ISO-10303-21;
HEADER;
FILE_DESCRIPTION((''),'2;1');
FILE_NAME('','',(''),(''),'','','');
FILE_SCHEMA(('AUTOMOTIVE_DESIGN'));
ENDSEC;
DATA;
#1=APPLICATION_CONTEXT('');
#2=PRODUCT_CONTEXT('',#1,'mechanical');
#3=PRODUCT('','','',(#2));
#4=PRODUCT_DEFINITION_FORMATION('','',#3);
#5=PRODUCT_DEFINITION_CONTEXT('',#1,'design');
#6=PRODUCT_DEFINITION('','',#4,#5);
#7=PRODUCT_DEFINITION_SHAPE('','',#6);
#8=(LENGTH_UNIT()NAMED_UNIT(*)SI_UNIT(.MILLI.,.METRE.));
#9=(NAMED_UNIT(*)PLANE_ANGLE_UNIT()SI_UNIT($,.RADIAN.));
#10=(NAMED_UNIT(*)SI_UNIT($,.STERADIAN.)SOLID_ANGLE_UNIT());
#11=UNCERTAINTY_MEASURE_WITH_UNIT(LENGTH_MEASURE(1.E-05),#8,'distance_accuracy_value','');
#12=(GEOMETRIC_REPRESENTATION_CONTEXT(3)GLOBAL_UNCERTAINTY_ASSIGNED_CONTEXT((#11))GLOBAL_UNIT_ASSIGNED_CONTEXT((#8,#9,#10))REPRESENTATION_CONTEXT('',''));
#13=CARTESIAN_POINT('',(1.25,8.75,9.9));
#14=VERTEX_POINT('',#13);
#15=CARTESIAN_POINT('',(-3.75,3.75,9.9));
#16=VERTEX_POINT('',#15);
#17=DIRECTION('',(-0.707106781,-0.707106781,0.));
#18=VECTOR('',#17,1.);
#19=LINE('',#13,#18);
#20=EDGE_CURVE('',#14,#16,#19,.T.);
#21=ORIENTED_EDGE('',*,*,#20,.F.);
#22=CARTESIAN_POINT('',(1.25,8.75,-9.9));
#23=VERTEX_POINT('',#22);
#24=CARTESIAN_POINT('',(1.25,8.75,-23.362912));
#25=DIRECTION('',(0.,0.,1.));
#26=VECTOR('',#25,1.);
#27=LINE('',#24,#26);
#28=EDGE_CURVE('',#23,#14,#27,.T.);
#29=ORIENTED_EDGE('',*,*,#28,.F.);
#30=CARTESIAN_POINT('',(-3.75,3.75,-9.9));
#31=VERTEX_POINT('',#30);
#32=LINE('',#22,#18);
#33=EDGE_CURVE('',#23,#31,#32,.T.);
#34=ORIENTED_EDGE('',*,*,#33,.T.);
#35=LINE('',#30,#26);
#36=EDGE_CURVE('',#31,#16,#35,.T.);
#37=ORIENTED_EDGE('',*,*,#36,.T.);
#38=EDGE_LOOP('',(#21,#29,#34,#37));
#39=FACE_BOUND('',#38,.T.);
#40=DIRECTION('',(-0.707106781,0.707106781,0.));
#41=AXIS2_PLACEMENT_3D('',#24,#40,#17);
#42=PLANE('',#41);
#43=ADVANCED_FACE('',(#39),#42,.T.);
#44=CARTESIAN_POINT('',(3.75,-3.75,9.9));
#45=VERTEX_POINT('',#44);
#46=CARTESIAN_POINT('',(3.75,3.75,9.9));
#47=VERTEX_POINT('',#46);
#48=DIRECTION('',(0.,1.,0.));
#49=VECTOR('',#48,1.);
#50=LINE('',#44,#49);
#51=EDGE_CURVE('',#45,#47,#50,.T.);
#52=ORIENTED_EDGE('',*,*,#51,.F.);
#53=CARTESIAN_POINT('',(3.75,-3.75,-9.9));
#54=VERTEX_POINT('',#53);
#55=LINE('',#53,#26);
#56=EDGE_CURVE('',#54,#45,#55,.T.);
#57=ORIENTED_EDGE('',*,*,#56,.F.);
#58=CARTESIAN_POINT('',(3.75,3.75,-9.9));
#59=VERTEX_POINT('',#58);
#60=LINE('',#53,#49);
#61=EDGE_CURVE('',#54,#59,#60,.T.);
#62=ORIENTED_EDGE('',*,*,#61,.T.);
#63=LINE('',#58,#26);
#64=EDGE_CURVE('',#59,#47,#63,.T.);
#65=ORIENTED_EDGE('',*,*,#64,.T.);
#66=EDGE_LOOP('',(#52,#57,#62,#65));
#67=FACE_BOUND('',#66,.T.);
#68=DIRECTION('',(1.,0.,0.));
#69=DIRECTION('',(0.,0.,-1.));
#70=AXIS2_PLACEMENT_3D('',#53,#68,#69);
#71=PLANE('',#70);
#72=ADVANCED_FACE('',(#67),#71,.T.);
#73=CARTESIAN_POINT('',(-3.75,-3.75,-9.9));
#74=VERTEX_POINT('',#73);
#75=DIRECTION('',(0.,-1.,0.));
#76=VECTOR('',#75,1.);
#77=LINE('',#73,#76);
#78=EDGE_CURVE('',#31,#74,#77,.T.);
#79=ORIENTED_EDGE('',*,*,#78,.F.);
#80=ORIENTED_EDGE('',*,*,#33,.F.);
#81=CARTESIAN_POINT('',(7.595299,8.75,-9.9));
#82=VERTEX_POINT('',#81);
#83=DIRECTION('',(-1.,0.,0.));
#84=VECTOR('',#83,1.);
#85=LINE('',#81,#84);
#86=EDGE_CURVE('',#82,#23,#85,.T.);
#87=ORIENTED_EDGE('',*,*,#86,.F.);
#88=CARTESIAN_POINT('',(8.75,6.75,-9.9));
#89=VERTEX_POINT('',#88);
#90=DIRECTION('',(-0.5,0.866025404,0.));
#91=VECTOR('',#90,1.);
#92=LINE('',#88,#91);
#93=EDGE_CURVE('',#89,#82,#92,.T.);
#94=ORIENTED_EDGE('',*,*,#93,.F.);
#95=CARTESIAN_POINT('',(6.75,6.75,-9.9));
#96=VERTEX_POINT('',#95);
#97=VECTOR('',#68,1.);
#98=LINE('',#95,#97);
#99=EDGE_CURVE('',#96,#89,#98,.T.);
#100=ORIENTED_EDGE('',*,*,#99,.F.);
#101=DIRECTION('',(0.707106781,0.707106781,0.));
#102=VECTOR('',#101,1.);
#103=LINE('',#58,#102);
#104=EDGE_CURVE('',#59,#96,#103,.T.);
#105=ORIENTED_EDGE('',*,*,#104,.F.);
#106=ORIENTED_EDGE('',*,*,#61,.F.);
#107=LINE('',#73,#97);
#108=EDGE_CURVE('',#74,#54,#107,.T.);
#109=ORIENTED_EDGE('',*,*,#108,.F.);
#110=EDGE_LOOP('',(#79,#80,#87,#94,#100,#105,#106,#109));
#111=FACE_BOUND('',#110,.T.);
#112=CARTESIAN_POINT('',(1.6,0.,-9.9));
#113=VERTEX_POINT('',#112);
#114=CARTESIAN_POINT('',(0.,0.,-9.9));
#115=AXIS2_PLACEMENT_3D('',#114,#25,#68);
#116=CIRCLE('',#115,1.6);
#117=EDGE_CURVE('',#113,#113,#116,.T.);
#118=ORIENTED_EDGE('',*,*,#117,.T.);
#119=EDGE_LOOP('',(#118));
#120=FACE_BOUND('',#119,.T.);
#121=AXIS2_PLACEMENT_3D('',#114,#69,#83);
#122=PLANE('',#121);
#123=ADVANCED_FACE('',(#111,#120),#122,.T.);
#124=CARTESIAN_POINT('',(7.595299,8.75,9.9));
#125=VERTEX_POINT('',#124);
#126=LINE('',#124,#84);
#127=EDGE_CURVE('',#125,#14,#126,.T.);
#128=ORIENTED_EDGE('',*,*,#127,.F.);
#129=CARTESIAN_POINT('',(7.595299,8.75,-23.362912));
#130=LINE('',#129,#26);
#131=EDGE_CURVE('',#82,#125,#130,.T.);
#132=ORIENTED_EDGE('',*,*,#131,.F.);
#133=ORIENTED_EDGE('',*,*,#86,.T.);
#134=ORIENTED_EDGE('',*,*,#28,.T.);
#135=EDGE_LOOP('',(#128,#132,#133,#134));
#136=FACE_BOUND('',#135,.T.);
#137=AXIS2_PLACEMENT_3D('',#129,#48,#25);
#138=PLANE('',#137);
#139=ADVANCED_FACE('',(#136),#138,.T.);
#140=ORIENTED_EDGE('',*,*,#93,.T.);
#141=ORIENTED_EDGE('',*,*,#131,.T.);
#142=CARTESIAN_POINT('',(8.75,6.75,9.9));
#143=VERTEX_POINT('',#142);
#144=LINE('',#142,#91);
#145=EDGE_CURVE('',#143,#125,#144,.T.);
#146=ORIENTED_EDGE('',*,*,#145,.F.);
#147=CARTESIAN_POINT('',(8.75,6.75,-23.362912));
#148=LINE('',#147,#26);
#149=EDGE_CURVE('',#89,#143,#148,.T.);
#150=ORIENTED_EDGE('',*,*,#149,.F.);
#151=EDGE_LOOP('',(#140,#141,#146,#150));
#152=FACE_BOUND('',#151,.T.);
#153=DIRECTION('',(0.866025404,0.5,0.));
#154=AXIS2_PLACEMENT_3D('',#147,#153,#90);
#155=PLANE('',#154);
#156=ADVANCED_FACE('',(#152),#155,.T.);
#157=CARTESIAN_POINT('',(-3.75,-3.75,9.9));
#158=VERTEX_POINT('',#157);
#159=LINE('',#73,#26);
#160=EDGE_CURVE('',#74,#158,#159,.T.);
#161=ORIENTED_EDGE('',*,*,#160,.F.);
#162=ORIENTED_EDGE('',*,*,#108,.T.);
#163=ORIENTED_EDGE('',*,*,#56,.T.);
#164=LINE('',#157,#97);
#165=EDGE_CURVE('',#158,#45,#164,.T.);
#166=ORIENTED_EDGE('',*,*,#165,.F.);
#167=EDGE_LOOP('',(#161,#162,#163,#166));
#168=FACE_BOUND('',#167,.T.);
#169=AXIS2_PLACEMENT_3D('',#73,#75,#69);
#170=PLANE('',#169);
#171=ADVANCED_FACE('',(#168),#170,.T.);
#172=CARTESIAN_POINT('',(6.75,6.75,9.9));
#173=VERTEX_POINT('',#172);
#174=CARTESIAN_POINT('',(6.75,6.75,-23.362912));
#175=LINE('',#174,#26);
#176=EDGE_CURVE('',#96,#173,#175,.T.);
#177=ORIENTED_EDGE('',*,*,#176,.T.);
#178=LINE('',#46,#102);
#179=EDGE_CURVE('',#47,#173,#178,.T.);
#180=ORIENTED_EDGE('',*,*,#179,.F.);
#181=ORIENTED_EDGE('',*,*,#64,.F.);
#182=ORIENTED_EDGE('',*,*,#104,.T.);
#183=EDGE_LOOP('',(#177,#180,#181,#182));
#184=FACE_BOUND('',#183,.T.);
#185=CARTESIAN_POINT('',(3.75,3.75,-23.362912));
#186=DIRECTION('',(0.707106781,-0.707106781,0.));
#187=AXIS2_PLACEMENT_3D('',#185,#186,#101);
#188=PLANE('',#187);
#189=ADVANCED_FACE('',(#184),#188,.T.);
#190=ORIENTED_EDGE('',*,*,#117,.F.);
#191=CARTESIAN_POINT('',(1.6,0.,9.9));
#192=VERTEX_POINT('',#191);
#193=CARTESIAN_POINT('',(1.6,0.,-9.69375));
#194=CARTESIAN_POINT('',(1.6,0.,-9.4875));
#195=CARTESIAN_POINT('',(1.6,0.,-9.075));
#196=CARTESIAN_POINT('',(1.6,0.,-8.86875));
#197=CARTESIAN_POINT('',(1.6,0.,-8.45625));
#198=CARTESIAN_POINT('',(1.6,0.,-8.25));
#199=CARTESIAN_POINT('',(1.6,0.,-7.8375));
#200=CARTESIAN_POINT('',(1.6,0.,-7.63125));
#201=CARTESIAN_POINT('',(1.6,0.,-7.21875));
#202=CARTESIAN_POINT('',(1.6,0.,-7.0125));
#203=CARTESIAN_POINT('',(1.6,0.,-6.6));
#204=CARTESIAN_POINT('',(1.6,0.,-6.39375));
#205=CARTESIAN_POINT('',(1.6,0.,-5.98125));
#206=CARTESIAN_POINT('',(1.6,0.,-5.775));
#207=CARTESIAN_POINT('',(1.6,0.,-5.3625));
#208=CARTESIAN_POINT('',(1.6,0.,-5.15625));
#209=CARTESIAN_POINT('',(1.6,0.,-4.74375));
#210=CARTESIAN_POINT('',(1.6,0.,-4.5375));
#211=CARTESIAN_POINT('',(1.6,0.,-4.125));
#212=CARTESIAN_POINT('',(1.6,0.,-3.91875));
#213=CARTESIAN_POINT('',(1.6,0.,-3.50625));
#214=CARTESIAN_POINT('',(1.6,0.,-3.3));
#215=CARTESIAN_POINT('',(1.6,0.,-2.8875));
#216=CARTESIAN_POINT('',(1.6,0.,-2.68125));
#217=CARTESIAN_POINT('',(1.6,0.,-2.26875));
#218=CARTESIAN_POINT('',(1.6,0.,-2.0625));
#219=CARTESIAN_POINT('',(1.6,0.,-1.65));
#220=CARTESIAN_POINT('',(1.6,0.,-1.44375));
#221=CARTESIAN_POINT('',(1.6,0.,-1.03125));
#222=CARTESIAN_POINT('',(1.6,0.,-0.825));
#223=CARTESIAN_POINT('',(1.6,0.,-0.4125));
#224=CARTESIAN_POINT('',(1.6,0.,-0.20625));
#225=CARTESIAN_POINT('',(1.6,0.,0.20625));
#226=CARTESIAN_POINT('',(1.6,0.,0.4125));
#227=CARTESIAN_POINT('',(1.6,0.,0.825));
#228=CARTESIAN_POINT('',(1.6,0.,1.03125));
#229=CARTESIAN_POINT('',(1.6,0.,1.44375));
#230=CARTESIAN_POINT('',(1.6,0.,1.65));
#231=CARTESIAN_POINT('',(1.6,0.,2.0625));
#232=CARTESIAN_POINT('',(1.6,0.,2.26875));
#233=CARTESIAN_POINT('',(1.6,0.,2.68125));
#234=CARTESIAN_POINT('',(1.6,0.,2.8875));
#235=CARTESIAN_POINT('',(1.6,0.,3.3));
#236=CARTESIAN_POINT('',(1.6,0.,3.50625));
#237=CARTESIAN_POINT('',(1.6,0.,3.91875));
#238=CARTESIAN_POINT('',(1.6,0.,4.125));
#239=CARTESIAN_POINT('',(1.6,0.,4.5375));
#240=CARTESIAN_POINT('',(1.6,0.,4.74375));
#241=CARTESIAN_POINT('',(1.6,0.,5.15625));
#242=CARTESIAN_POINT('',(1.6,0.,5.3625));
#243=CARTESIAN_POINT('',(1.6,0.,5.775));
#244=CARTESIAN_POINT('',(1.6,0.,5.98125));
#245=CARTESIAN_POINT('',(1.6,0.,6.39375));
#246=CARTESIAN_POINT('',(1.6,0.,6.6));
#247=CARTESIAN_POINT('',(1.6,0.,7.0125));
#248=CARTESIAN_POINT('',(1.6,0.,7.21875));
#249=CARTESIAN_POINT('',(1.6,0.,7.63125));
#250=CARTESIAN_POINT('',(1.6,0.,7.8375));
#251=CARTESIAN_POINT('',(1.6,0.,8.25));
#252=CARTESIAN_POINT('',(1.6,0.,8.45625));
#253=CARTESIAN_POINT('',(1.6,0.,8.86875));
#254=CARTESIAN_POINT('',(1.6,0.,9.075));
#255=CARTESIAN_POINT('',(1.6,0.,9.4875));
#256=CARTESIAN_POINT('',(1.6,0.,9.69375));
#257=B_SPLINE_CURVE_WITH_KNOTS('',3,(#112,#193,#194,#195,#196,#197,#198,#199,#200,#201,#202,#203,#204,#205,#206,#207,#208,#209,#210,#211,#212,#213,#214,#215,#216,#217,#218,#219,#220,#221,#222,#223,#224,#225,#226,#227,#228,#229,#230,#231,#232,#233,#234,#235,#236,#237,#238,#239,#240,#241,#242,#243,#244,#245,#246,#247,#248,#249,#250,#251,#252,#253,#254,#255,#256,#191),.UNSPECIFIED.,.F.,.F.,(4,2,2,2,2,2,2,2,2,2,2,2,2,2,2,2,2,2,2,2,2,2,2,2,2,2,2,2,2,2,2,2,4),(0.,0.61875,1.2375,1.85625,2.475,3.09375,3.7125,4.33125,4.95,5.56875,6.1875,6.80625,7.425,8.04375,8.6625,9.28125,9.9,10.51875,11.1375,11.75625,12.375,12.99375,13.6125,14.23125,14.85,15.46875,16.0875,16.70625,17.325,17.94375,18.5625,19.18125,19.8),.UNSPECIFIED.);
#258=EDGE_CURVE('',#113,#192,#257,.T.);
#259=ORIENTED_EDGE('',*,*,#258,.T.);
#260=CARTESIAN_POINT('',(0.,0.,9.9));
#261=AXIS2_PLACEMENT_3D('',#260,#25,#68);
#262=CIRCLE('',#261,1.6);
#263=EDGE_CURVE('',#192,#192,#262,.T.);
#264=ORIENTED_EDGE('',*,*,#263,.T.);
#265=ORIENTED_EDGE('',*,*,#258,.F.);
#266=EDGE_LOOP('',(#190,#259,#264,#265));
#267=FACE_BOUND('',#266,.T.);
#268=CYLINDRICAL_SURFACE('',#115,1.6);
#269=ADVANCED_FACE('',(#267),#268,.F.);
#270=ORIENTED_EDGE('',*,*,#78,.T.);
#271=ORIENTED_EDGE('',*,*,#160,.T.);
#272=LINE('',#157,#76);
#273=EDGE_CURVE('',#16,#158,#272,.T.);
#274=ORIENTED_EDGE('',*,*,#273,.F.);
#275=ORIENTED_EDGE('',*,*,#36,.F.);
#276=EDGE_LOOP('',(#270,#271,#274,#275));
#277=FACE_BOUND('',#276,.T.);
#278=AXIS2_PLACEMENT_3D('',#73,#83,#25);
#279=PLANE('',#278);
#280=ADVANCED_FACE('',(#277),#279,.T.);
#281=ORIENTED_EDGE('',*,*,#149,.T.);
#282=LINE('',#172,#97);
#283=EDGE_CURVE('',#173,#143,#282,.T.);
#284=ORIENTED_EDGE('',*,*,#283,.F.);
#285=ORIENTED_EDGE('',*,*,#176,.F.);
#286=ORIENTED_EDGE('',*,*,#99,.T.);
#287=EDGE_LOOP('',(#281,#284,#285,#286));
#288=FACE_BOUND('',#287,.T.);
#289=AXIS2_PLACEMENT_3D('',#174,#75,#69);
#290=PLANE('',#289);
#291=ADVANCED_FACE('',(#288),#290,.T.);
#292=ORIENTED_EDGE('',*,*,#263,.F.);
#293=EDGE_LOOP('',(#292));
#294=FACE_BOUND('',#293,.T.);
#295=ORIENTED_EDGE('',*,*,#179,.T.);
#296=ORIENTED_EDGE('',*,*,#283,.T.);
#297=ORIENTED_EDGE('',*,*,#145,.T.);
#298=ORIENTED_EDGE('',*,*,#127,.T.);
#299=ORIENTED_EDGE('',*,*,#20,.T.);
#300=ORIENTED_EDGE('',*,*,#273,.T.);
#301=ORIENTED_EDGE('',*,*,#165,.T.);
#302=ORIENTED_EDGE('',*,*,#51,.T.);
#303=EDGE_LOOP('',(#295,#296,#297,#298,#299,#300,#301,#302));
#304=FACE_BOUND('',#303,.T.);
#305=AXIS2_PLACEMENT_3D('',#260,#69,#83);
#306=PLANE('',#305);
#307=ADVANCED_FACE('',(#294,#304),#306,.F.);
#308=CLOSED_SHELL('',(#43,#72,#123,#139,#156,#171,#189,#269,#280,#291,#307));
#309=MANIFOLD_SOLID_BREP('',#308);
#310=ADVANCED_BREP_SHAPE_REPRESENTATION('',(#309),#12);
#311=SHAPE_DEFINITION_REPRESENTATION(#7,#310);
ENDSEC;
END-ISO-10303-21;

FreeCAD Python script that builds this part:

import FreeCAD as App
import Part
import Sketcher
from FreeCAD import Vector
Q = App.Units.Quantity


def add_polygon(sketch, points):
    """Adds a closed chain of lines whose ends are joined by coincident constraints."""
    first, n = sketch.GeometryCount, len(points)
    for a, b in zip(points, points[1:] + points[:1]):
        sketch.addGeometry(Part.LineSegment(App.Vector(*a, 0), App.Vector(*b, 0)), False)
    for i in range(n):
        sketch.addConstraint(Sketcher.Constraint("Coincident", first + i, 2, first + (i + 1) % n, 1))

doc = App.newDocument("Part")
params = doc.addObject("Spreadsheet::Sheet", "Params")
for row, (alias, value) in enumerate([
    ("sketch1_diameter", "3.2 mm"),
    ("sketch1_width", "7.5 mm"),
    ("pad1_length", "9.9 mm"),
    ("pad1_length2", "9.9 mm"),
    ("sketch2_width", "2 mm"),
    ("sketch2_width2", "7.5 mm"),
    ("pad2_length", "19.8 mm"),
], start=1):
    params.set(f"A{row}", alias)
    params.set(f"B{row}", "=" + value)
    params.setAlias(f"B{row}", alias)

body = doc.addObject("PartDesign::Body", "Body")

# Sketch on XY plane
sketch1 = body.newObject("Sketcher::SketchObject", "Sketch")
sketch1.AttachmentSupport = (doc.getObject("XY_Plane"), [""])
sketch1.MapMode = "FlatFace"
add_polygon(sketch1, [(-3.75, 3.75), (-3.75, -3.75), (3.75, -3.75), (3.75, 3.75)])  # lines 0-3
sketch1.addGeometry(Part.Circle(Vector(0, 0, 0), Vector(0, 0, 1), 1.6), False)  # 4
sketch1.addConstraint(Sketcher.Constraint("Vertical", 0))
sketch1.addConstraint(Sketcher.Constraint("Horizontal", 1))
sketch1.addConstraint(Sketcher.Constraint("Vertical", 2))
sketch1.addConstraint(Sketcher.Constraint("Horizontal", 3))
sketch1.addConstraint(Sketcher.Constraint("Coincident", 4, 3, -1, 1))
sketch1.addConstraint(Sketcher.Constraint("Symmetric", 0, 2, 2, 2, -1, 1))
sketch1.addConstraint(Sketcher.Constraint("Equal", 3, 0))
sketch1.addConstraint(Sketcher.Constraint("Diameter", 4, Q("3.2 mm")))
sketch1.addConstraint(Sketcher.Constraint("DistanceX", 1, 1, 1, 2, Q("7.5 mm")))
sketch1.setExpression("Constraints[11]", "Params.sketch1_diameter")
sketch1.setExpression("Constraints[12]", "Params.sketch1_width")
pad1 = body.newObject("PartDesign::Pad", "Pad")
pad1.Profile = sketch1
pad1.Type = "TwoLengths"
pad1.setExpression("Length", "Params.pad1_length")
pad1.setExpression("Length2", "Params.pad1_length2")

# Sketch on XY plane
sketch2 = body.newObject("Sketcher::SketchObject", "Sketch001")
sketch2.AttachmentSupport = (doc.getObject("XY_Plane"), [""])
sketch2.MapMode = "FlatFace"
sketch2.AttachmentOffset = App.Placement(Vector(0, 0, 9.9), App.Rotation())
add_polygon(sketch2, [(3.75, 3.75), (6.75, 6.75), (8.75, 6.75), (7.595299, 8.75), (1.25, 8.75), (-3.75, 3.75)])  # lines 0-5
sketch2.addConstraint(Sketcher.Constraint("Horizontal", 1))
sketch2.addConstraint(Sketcher.Constraint("Horizontal", 3))
sketch2.addConstraint(Sketcher.Constraint("Horizontal", 5))
sketch2.addConstraint(Sketcher.Constraint("Parallel", 0, 4))
sketch2.addConstraint(Sketcher.Constraint("DistanceX", 1, 1, 1, 2, Q("2 mm")))
sketch2.addConstraint(Sketcher.Constraint("Angle", 0, Q("45 deg")))
sketch2.addConstraint(Sketcher.Constraint("Angle", 2, Q("120 deg")))
sketch2.addConstraint(Sketcher.Constraint("DistanceX", 5, 1, 5, 2, Q("7.5 mm")))
sketch2.addConstraint(Sketcher.Constraint("DistanceY", 0, 2, 2, 2, Q("2 mm")))
sketch2.addConstraint(Sketcher.Constraint("DistanceX", 4, 2, 3, 2, Q("5 mm")))
sketch2.addConstraint(Sketcher.Constraint("DistanceX", -1, 1, 0, 2, Q("6.75 mm")))
sketch2.addConstraint(Sketcher.Constraint("DistanceY", -1, 1, 0, 2, Q("6.75 mm")))
sketch2.setExpression("Constraints[10]", "Params.sketch2_width")
sketch2.setExpression("Constraints[13]", "Params.sketch2_width2")
pad2 = body.newObject("PartDesign::Pad", "Pad001")
pad2.Profile = sketch2
pad2.setExpression("Length", "Params.pad2_length")
pad2.Reversed = True

doc.recompute()
